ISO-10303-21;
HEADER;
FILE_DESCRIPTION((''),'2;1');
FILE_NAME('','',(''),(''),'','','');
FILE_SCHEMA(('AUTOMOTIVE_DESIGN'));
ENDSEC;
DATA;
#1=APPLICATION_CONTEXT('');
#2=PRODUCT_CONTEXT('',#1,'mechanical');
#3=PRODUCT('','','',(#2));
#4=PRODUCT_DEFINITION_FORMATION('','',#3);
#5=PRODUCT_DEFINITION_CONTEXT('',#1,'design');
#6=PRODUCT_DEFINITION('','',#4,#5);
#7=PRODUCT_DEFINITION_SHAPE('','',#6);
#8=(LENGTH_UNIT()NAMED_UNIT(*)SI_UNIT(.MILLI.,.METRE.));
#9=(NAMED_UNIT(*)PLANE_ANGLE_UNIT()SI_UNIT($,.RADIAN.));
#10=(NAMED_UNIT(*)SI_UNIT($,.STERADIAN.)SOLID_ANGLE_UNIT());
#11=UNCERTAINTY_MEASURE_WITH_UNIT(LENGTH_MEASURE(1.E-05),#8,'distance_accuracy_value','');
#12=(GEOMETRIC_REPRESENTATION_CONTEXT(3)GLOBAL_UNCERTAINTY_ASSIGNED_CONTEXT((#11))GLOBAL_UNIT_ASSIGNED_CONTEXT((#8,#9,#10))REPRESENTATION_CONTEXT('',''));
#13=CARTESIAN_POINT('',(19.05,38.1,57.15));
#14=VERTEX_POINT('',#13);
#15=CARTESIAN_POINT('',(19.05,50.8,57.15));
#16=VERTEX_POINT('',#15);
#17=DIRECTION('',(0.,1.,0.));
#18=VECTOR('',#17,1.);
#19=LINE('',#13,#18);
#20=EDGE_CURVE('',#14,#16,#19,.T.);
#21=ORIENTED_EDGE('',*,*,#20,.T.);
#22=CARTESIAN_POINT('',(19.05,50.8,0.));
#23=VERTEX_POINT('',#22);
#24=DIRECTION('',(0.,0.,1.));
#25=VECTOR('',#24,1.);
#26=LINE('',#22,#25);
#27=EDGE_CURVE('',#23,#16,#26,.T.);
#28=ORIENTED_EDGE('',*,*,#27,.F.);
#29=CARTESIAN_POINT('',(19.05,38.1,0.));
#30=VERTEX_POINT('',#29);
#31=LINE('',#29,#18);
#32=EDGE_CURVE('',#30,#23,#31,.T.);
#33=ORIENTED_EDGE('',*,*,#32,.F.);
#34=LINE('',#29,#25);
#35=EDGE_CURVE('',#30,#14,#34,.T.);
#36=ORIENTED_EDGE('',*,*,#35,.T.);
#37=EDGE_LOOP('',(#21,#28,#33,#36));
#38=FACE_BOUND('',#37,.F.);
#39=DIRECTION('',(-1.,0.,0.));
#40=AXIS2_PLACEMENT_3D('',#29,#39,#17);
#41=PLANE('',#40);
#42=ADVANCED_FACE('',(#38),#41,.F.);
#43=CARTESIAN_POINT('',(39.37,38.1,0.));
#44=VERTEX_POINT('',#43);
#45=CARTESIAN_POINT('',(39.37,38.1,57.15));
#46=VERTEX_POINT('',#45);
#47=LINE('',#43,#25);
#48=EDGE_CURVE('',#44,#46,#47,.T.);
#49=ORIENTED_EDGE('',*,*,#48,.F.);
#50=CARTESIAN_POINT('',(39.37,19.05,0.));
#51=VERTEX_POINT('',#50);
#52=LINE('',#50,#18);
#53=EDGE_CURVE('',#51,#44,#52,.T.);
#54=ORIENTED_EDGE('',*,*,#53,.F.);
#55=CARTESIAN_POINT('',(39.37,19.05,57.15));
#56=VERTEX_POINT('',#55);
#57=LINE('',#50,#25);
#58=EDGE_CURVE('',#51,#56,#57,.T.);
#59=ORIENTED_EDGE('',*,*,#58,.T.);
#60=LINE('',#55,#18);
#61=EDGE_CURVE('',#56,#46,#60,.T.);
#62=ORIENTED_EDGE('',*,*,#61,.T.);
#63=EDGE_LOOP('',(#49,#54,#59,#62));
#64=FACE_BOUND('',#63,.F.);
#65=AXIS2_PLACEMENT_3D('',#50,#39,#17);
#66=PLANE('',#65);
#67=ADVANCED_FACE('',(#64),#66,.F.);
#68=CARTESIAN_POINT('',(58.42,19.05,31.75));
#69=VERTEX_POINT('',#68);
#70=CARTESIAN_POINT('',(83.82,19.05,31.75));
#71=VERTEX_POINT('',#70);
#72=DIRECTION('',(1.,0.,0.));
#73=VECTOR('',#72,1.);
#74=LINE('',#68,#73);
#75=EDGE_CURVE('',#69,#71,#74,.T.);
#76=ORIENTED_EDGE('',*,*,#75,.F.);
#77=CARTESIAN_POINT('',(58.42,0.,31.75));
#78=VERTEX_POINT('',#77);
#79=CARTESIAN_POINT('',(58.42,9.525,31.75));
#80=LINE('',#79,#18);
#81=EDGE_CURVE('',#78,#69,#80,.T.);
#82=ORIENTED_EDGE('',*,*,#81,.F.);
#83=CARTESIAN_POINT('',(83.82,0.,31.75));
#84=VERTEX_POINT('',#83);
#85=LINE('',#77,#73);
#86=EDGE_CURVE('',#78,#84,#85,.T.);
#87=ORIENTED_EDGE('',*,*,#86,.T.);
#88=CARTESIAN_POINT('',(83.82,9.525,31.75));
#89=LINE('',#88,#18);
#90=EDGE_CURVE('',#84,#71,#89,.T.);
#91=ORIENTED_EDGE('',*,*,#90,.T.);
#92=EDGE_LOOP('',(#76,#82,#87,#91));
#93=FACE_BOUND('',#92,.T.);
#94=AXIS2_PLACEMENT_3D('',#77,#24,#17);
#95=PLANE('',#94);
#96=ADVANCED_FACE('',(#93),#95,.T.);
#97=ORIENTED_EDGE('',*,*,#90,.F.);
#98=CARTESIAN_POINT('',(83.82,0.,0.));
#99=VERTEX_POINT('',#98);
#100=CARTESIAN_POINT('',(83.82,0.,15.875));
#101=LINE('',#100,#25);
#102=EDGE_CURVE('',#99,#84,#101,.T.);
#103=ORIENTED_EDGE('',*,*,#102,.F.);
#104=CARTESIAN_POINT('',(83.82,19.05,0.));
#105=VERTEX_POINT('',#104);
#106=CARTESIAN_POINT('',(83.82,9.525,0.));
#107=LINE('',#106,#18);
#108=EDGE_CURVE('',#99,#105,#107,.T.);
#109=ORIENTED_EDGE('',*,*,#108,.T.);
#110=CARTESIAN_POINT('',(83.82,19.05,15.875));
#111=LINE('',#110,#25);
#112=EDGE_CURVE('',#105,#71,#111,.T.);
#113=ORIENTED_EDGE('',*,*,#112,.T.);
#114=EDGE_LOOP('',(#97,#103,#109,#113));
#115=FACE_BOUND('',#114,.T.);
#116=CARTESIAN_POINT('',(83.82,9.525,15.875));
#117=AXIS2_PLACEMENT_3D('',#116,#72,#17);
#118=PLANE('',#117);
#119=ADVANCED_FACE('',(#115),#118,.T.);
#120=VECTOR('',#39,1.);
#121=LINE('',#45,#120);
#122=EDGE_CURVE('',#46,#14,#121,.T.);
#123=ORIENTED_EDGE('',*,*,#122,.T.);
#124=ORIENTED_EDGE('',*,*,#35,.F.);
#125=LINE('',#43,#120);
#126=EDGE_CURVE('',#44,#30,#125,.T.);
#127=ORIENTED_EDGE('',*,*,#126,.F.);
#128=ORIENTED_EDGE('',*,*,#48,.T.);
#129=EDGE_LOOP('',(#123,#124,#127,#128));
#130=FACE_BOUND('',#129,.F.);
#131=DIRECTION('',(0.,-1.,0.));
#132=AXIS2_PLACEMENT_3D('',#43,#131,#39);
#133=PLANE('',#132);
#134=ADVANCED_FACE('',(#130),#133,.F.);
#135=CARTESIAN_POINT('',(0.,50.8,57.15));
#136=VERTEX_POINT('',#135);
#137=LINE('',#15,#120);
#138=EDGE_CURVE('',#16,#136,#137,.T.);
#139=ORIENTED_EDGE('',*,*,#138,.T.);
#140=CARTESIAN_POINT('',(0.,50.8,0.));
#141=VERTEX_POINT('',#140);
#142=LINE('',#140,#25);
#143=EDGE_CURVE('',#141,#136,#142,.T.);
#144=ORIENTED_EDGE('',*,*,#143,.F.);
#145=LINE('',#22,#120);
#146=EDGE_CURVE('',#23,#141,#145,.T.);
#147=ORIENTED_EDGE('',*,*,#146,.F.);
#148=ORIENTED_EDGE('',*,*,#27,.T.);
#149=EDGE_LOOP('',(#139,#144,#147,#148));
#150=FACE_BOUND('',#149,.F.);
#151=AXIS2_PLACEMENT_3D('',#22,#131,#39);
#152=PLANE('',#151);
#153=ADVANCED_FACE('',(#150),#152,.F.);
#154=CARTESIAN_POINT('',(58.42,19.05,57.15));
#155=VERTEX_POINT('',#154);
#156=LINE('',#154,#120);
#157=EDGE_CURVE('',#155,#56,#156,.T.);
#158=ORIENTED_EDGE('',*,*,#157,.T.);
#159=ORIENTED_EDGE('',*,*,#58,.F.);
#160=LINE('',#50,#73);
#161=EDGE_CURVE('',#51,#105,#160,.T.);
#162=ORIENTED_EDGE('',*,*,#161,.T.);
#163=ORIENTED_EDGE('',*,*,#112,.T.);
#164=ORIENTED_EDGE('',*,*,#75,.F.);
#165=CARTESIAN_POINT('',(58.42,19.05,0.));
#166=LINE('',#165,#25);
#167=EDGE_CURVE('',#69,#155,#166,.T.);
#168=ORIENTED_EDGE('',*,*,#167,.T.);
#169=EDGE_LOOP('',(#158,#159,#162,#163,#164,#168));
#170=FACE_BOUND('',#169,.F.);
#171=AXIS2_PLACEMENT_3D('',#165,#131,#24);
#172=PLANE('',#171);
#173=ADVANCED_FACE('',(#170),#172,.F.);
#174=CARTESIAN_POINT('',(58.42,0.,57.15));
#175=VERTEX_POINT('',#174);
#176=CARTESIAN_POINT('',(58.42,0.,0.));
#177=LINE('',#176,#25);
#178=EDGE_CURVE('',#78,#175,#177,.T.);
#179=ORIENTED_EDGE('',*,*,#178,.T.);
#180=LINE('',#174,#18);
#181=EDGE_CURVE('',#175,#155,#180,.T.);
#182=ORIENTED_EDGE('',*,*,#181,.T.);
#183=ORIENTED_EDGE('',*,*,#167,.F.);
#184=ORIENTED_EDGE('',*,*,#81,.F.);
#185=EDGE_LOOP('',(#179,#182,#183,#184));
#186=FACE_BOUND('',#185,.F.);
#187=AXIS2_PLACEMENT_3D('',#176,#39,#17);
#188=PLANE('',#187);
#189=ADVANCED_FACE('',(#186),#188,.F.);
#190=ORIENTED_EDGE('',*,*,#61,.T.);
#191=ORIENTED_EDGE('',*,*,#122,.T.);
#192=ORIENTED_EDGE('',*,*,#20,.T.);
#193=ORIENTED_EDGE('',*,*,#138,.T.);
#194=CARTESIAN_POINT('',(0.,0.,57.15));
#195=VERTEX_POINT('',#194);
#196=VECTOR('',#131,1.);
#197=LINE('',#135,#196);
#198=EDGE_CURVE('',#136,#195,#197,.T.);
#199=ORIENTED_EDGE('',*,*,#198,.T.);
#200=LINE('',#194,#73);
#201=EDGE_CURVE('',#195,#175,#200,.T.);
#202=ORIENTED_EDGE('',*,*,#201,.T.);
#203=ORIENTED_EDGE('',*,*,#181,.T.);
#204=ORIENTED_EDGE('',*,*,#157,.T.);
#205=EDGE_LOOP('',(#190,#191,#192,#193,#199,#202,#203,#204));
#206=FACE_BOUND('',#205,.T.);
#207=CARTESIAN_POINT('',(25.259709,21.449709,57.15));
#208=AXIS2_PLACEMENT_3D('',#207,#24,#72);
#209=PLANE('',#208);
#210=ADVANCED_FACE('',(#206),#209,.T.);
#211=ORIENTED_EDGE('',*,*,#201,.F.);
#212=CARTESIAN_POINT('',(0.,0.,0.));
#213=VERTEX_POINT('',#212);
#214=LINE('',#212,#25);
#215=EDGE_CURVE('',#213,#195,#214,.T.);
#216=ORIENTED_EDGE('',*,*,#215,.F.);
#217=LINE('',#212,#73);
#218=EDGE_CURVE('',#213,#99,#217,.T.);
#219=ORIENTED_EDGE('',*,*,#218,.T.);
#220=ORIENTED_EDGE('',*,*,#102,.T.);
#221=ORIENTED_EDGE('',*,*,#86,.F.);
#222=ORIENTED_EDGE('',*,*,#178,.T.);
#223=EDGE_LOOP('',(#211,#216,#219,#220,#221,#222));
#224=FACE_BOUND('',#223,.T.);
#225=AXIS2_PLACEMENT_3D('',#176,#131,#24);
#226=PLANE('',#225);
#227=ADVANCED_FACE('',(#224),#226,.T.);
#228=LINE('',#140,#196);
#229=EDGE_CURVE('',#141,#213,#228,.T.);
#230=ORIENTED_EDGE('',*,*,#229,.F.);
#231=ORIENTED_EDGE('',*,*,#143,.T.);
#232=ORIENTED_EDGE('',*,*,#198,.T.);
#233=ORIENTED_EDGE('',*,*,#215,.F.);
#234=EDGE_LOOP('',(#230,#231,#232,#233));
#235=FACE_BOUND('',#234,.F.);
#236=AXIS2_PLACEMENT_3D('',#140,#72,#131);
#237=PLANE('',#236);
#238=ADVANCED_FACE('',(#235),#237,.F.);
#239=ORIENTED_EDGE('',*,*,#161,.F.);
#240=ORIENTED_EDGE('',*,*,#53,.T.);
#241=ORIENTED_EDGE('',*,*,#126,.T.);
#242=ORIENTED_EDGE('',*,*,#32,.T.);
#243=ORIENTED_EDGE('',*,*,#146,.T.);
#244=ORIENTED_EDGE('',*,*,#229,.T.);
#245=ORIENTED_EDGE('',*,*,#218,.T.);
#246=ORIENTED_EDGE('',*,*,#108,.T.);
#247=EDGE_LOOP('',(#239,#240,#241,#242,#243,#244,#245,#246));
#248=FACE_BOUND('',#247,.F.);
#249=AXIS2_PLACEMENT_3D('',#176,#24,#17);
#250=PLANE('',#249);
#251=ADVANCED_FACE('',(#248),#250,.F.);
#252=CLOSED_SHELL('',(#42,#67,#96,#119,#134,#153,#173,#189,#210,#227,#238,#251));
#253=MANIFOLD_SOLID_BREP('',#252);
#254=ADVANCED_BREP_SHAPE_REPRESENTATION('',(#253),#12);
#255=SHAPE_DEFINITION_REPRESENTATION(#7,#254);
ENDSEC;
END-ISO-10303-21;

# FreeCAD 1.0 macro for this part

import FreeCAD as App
import Part
import Sketcher

V = App.Vector
Q = App.Units.Quantity


def add_polygon(sketch, points):
    """Adds a closed chain of lines whose ends are joined by coincident constraints."""
    first, n = sketch.GeometryCount, len(points)
    for a, b in zip(points, points[1:] + points[:1]):
        sketch.addGeometry(Part.LineSegment(App.Vector(*a, 0), App.Vector(*b, 0)), False)
    for i in range(n):
        sketch.addConstraint(Sketcher.Constraint("Coincident", first + i, 2, first + (i + 1) % n, 1))

doc = App.newDocument("Part")
body = doc.addObject("PartDesign::Body", "Body")

# Sketch on XY plane
sketch1 = body.newObject("Sketcher::SketchObject", "Sketch")
sketch1.AttachmentSupport = (doc.getObject("XY_Plane"), [""])
sketch1.MapMode = "FlatFace"
add_polygon(sketch1, [(0, 51), (0, 0), (58, 0), (58, 19), (39, 19), (39, 38), (19, 38), (19, 51)])  # lines 0-7
sketch1.addConstraint([
    Sketcher.Constraint("Vertical", 0),
    Sketcher.Constraint("Horizontal", 1),
    Sketcher.Constraint("Vertical", 2),
    Sketcher.Constraint("Horizontal", 3),
    Sketcher.Constraint("Vertical", 4),
    Sketcher.Constraint("Horizontal", 5),
    Sketcher.Constraint("Vertical", 6),
    Sketcher.Constraint("Horizontal", 7),
    Sketcher.Constraint("Coincident", 0, 2, -1, 1),
    Sketcher.Constraint("Equal", 3, 7),
    Sketcher.Constraint("Equal", 7, 2),
    Sketcher.Constraint("Equal", 2, 4),
    Sketcher.Constraint("DistanceY", 0, 2, 0, 1, Q("2 in")),
    Sketcher.Constraint("DistanceX", 1, 1, 1, 2, Q("2.3 in")),
    Sketcher.Constraint("DistanceX", 5, 2, 5, 1, Q("0.8 in")),
])
pad1 = body.newObject("PartDesign::Pad", "Pad")
pad1.Profile = sketch1
pad1.Length = Q("2.25 in")

# Sketch on YZ plane
sketch2 = body.newObject("Sketcher::SketchObject", "Sketch001")
sketch2.AttachmentSupport = (doc.getObject("YZ_Plane"), [""])
sketch2.MapMode = "FlatFace"
sketch2.AttachmentOffset = App.Placement(V(0, 0, 2.3 * 25.4), App.Rotation())
add_polygon(sketch2, [(0, 32), (0, 0), (19, 0), (19, 32)])  # lines 0-3
sketch2.addConstraint([
    Sketcher.Constraint("Vertical", 0),
    Sketcher.Constraint("Horizontal", 1),
    Sketcher.Constraint("Vertical", 2),
    Sketcher.Constraint("Horizontal", 3),
    Sketcher.Constraint("Coincident", 0, 2, -1, 1),
    Sketcher.Constraint("DistanceX", 1, 1, 1, 2, Q("0.75 in")),
    Sketcher.Constraint("DistanceY", 0, 2, 0, 1, Q("1.25 in")),
])
pad2 = body.newObject("PartDesign::Pad", "Pad001")
pad2.Profile = sketch2
pad2.Length = Q("1 in")

doc.recompute()
